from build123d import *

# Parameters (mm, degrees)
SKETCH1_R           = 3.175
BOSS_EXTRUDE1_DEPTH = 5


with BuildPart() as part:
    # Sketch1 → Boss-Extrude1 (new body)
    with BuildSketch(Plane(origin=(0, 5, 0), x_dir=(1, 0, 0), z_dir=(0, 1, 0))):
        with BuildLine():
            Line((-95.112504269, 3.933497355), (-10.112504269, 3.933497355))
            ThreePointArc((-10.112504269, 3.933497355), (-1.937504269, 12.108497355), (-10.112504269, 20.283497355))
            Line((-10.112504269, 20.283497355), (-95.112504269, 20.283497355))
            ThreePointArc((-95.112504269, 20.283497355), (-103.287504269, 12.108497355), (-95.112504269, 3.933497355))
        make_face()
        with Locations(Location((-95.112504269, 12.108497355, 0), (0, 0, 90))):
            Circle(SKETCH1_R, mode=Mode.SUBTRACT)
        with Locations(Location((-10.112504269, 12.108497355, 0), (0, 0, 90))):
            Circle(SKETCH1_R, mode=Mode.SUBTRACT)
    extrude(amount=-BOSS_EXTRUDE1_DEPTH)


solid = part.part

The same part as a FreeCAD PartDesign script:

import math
import FreeCAD as App
import Part
import Sketcher

doc = App.newDocument("Part")
params = doc.addObject("Spreadsheet::Sheet", "Params")
for row, (alias, value) in enumerate([
    ("sketch1_diameter", "6.35 mm"),
    ("sketch1_width", "85 mm"),
    ("pad1_length", "5 mm"),
], start=1):
    params.set(f"A{row}", alias)
    params.set(f"B{row}", "=" + value)
    params.setAlias(f"B{row}", alias)

body = doc.addObject("PartDesign::Body", "Body")

# Sketch on XZ plane
sketch1 = body.newObject("Sketcher::SketchObject", "Sketch")
sketch1.AttachmentSupport = (doc.getObject("XZ_Plane"), [""])
sketch1.MapMode = "FlatFace"
sketch1.AttachmentOffset = App.Placement(App.Vector(0, 0, -5), App.Rotation())
sketch1.addGeometry(Part.LineSegment(App.Vector(-95.1, -3.9, 0), App.Vector(-10.1, -3.9, 0)), False)
sketch1.addGeometry(Part.ArcOfCircle(Part.Circle(App.Vector(-10.1, -12.1, 0), App.Vector(0, 0, 1), 8.2), math.radians(-90), math.radians(90)), False)
sketch1.addGeometry(Part.LineSegment(App.Vector(-10.1, -20.3, 0), App.Vector(-95.1, -20.3, 0)), False)
sketch1.addGeometry(Part.ArcOfCircle(Part.Circle(App.Vector(-95.1, -12.1, 0), App.Vector(0, 0, 1), 8.2), math.radians(90), math.radians(270)), False)
sketch1.addGeometry(Part.Circle(App.Vector(-95.1, -12.1, 0), App.Vector(0, 0, 1), 3.2), False)
sketch1.addGeometry(Part.Circle(App.Vector(-10.1, -12.1, 0), App.Vector(0, 0, 1), 3.2), False)
sketch1.addConstraint(Sketcher.Constraint("Tangent", 0, 2, 1, 2))
sketch1.addConstraint(Sketcher.Constraint("Tangent", 1, 1, 2, 1))
sketch1.addConstraint(Sketcher.Constraint("Tangent", 2, 2, 3, 2))
sketch1.addConstraint(Sketcher.Constraint("Tangent", 3, 1, 0, 1))
sketch1.addConstraint(Sketcher.Constraint("Horizontal", 0))
sketch1.addConstraint(Sketcher.Constraint("Horizontal", 2))
sketch1.addConstraint(Sketcher.Constraint("Coincident", 4, 3, 3, 3))
sketch1.addConstraint(Sketcher.Constraint("Coincident", 5, 3, 1, 3))
sketch1.addConstraint(Sketcher.Constraint("Equal", 4, 5))
sketch1.addConstraint(Sketcher.Constraint("Diameter", 4, 6.35))
sketch1.addConstraint(Sketcher.Constraint("DistanceX", 0, 1, 0, 2, 85.0))
sketch1.addConstraint(Sketcher.Constraint("Radius", 1, 8.175))
sketch1.addConstraint(Sketcher.Constraint("DistanceX", 1, 3, -1, 1, 10.112504))
sketch1.addConstraint(Sketcher.Constraint("DistanceY", 1, 3, -1, 1, 12.108497))
sketch1.setExpression("Constraints[9]", "Params.sketch1_diameter")
sketch1.setExpression("Constraints[10]", "Params.sketch1_width")
pad1 = body.newObject("PartDesign::Pad", "Pad")
pad1.Profile = sketch1
pad1.setExpression("Length", "Params.pad1_length")

doc.recompute()
